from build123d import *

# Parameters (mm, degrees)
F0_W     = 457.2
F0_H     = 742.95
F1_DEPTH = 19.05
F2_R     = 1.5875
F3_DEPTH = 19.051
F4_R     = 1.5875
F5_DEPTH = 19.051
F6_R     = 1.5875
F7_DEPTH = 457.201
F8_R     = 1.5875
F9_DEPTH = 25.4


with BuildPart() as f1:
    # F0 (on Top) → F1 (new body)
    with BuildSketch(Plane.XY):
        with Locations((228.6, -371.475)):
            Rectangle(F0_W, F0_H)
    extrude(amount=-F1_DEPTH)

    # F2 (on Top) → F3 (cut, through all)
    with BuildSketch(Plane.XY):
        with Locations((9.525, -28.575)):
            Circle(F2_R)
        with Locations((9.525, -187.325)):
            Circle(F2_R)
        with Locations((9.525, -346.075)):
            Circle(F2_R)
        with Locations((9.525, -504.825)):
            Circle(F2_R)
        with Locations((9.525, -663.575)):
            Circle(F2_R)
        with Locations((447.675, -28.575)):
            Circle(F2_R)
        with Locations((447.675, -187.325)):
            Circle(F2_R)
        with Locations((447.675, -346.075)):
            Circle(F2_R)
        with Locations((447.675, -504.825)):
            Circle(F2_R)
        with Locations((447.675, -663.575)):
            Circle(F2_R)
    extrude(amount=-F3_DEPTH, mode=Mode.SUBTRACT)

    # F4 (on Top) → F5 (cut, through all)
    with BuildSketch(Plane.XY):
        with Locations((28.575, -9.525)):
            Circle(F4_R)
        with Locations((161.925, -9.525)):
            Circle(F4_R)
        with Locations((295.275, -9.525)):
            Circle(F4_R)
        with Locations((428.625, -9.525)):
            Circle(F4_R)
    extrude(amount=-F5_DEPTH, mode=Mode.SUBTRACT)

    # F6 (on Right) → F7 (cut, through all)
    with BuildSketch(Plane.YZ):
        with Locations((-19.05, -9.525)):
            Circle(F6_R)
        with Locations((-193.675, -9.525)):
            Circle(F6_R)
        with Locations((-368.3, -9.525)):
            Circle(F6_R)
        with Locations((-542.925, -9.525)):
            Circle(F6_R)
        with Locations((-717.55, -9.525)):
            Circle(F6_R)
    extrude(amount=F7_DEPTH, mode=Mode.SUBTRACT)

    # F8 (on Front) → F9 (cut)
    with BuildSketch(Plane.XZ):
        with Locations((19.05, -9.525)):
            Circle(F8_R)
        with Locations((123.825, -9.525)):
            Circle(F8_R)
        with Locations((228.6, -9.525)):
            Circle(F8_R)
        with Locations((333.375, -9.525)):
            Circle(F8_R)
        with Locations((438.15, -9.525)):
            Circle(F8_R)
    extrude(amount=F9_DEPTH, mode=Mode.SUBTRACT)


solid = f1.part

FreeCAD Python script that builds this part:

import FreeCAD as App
import Part
import Sketcher
from FreeCAD import Vector
Q = App.Units.Quantity

doc = App.newDocument("Part")
params = doc.addObject("Spreadsheet::Sheet", "Params")
for row, (alias, value) in enumerate([
    ("sketch1_width", "18 in"),
    ("sketch1_height", "29.25 in"),
    ("pad1_length", "0.75 in"),
    ("sketch2_diameter", "0.125 in"),
    ("sketch3_diameter", "0.125 in"),
    ("sketch4_diameter", "0.125 in"),
    ("sketch5_diameter", "0.125 in"),
    ("pocket4_length", "1 in"),
], start=1):
    params.set(f"A{row}", alias)
    params.set(f"B{row}", "=" + value)
    params.setAlias(f"B{row}", alias)

body = doc.addObject("PartDesign::Body", "Body")

# Sketch on XY plane
sketch1 = body.newObject("Sketcher::SketchObject", "Sketch")
sketch1.AttachmentSupport = (doc.getObject("XY_Plane"), [""])
sketch1.MapMode = "FlatFace"
sketch1.addGeometry([
    Part.LineSegment(Vector(0, 0, 0), Vector(0, -742.95, 0)),
    Part.LineSegment(Vector(0, -742.95, 0), Vector(457.2, -742.95, 0)),
    Part.LineSegment(Vector(457.2, -742.95, 0), Vector(457.2, 0, 0)),
    Part.LineSegment(Vector(457.2, 0, 0), Vector(0, 0, 0)),
], False)
sketch1.addConstraint([
    Sketcher.Constraint("Coincident", 0, 2, 1, 1),
    Sketcher.Constraint("Coincident", 1, 2, 2, 1),
    Sketcher.Constraint("Coincident", 2, 2, 3, 1),
    Sketcher.Constraint("Coincident", 3, 2, 0, 1),
    Sketcher.Constraint("Vertical", 0),
    Sketcher.Constraint("Horizontal", 1),
    Sketcher.Constraint("Vertical", 2),
    Sketcher.Constraint("Horizontal", 3),
    Sketcher.Constraint("Coincident", 3, 2, -1, 1),
    Sketcher.Constraint("DistanceX", 1, 1, 1, 2, Q("18 in")),
    Sketcher.Constraint("DistanceY", 0, 2, 0, 1, Q("29.25 in")),
])
sketch1.setExpression("Constraints[9]", "Params.sketch1_width")
sketch1.setExpression("Constraints[10]", "Params.sketch1_height")
pad1 = body.newObject("PartDesign::Pad", "Pad")
pad1.Profile = sketch1
pad1.setExpression("Length", "Params.pad1_length")
pad1.Reversed = True

# Sketch on XY plane
sketch2 = body.newObject("Sketcher::SketchObject", "Sketch001")
sketch2.AttachmentSupport = (doc.getObject("XY_Plane"), [""])
sketch2.MapMode = "FlatFace"
sketch2.addGeometry([
    Part.Circle(Vector(9.525, -28.575, 0), Vector(0, 0, 1), 1.5875),  # 0
    Part.Circle(Vector(9.525, -187.325, 0), Vector(0, 0, 1), 1.5875),  # 1
    Part.Circle(Vector(9.525, -346.075, 0), Vector(0, 0, 1), 1.5875),  # 2
    Part.Circle(Vector(9.525, -504.825, 0), Vector(0, 0, 1), 1.5875),  # 3
    Part.Circle(Vector(9.525, -663.575, 0), Vector(0, 0, 1), 1.5875),  # 4
    Part.Circle(Vector(447.675, -28.575, 0), Vector(0, 0, 1), 1.5875),  # 5
    Part.Circle(Vector(447.675, -187.325, 0), Vector(0, 0, 1), 1.5875),  # 6
    Part.Circle(Vector(447.675, -346.075, 0), Vector(0, 0, 1), 1.5875),  # 7
    Part.Circle(Vector(447.675, -504.825, 0), Vector(0, 0, 1), 1.5875),  # 8
    Part.Circle(Vector(447.675, -663.575, 0), Vector(0, 0, 1), 1.5875),  # 9
], False)
sketch2.addConstraint([
    Sketcher.Constraint("Equal", 0, 1),
    Sketcher.Constraint("Equal", 1, 2),
    Sketcher.Constraint("Equal", 2, 3),
    Sketcher.Constraint("Equal", 3, 4),
    Sketcher.Constraint("Equal", 4, 5),
    Sketcher.Constraint("Equal", 5, 6),
    Sketcher.Constraint("Equal", 6, 7),
    Sketcher.Constraint("Equal", 7, 8),
    Sketcher.Constraint("Equal", 8, 9),
    Sketcher.Constraint("Horizontal", 0, 3, 5, 3),
    Sketcher.Constraint("Horizontal", 1, 3, 6, 3),
    Sketcher.Constraint("Horizontal", 2, 3, 7, 3),
    Sketcher.Constraint("Horizontal", 3, 3, 8, 3),
    Sketcher.Constraint("Horizontal", 4, 3, 9, 3),
    Sketcher.Constraint("Vertical", 0, 3, 1, 3),
    Sketcher.Constraint("Vertical", 1, 3, 2, 3),
    Sketcher.Constraint("Vertical", 2, 3, 3, 3),
    Sketcher.Constraint("Vertical", 3, 3, 4, 3),
    Sketcher.Constraint("Vertical", 5, 3, 6, 3),
    Sketcher.Constraint("Vertical", 6, 3, 7, 3),
    Sketcher.Constraint("Vertical", 7, 3, 8, 3),
    Sketcher.Constraint("Vertical", 8, 3, 9, 3),
    Sketcher.Constraint("Diameter", 0, Q("0.125 in")),
    Sketcher.Constraint("DistanceY", 4, 3, 0, 3, Q("25 in")),
    Sketcher.Constraint("DistanceY", 2, 3, 0, 3, Q("12.5 in")),
    Sketcher.Constraint("DistanceY", 3, 3, 1, 3, Q("12.5 in")),
    Sketcher.Constraint("DistanceY", 1, 3, 0, 3, Q("6.25 in")),
    Sketcher.Constraint("DistanceX", 0, 3, 5, 3, Q("17.25 in")),
    Sketcher.Constraint("DistanceX", -1, 1, 0, 3, Q("0.375 in")),
    Sketcher.Constraint("DistanceY", 0, 3, -1, 1, Q("1.125 in")),
])
sketch2.setExpression("Constraints[22]", "Params.sketch2_diameter")
pocket1 = body.newObject("PartDesign::Pocket", "Pocket")
pocket1.Profile = sketch2
pocket1.Type = "ThroughAll"

# Sketch on XY plane
sketch3 = body.newObject("Sketcher::SketchObject", "Sketch002")
sketch3.AttachmentSupport = (doc.getObject("XY_Plane"), [""])
sketch3.MapMode = "FlatFace"
sketch3.addGeometry([
    Part.Circle(Vector(28.575, -9.525, 0), Vector(0, 0, 1), 1.5875),
    Part.Circle(Vector(161.925, -9.525, 0), Vector(0, 0, 1), 1.5875),
    Part.Circle(Vector(295.275, -9.525, 0), Vector(0, 0, 1), 1.5875),
    Part.Circle(Vector(428.625, -9.525, 0), Vector(0, 0, 1), 1.5875),
], False)
sketch3.addConstraint([
    Sketcher.Constraint("Equal", 0, 1),
    Sketcher.Constraint("Equal", 1, 2),
    Sketcher.Constraint("Equal", 2, 3),
    Sketcher.Constraint("Horizontal", 0, 3, 1, 3),
    Sketcher.Constraint("Horizontal", 1, 3, 2, 3),
    Sketcher.Constraint("Horizontal", 2, 3, 3, 3),
    Sketcher.Constraint("Diameter", 0, Q("0.125 in")),
    Sketcher.Constraint("DistanceX", 0, 3, 2, 3, Q("10.5 in")),
    Sketcher.Constraint("DistanceX", 1, 3, 3, 3, Q("10.5 in")),
    Sketcher.Constraint("DistanceX", 0, 3, 1, 3, Q("5.25 in")),
    Sketcher.Constraint("DistanceX", -1, 1, 0, 3, Q("1.125 in")),
    Sketcher.Constraint("DistanceY", 0, 3, -1, 1, Q("0.375 in")),
])
sketch3.setExpression("Constraints[6]", "Params.sketch3_diameter")
pocket2 = body.newObject("PartDesign::Pocket", "Pocket001")
pocket2.Profile = sketch3
pocket2.Type = "ThroughAll"

# Sketch on YZ plane
sketch4 = body.newObject("Sketcher::SketchObject", "Sketch003")
sketch4.AttachmentSupport = (doc.getObject("YZ_Plane"), [""])
sketch4.MapMode = "FlatFace"
sketch4.addGeometry([
    Part.Circle(Vector(-19.05, -9.525, 0), Vector(0, 0, 1), 1.5875),  # 0
    Part.Circle(Vector(-193.675, -9.525, 0), Vector(0, 0, 1), 1.5875),  # 1
    Part.Circle(Vector(-368.3, -9.525, 0), Vector(0, 0, 1), 1.5875),  # 2
    Part.Circle(Vector(-542.925, -9.525, 0), Vector(0, 0, 1), 1.5875),  # 3
    Part.Circle(Vector(-717.55, -9.525, 0), Vector(0, 0, 1), 1.5875),  # 4
], False)
sketch4.addConstraint([
    Sketcher.Constraint("Equal", 0, 1),
    Sketcher.Constraint("Equal", 1, 2),
    Sketcher.Constraint("Equal", 2, 3),
    Sketcher.Constraint("Equal", 3, 4),
    Sketcher.Constraint("Horizontal", 0, 3, 1, 3),
    Sketcher.Constraint("Horizontal", 1, 3, 2, 3),
    Sketcher.Constraint("Horizontal", 2, 3, 3, 3),
    Sketcher.Constraint("Horizontal", 3, 3, 4, 3),
    Sketcher.Constraint("Diameter", 0, Q("0.125 in")),
    Sketcher.Constraint("DistanceX", 2, 3, -1, 1, Q("14.5 in")),
    Sketcher.Constraint("DistanceX", 4, 3, 0, 3, Q("27.5 in")),
    Sketcher.Constraint("DistanceX", 0, 3, -1, 1, Q("0.75 in")),
    Sketcher.Constraint("DistanceX", 3, 3, 1, 3, Q("13.75 in")),
    Sketcher.Constraint("DistanceY", 0, 3, -1, 1, Q("0.375 in")),
    Sketcher.Constraint("DistanceX", 1, 3, -1, 1, Q("7.625 in")),
])
sketch4.setExpression("Constraints[8]", "Params.sketch4_diameter")
pocket3 = body.newObject("PartDesign::Pocket", "Pocket002")
pocket3.Profile = sketch4
pocket3.Type = "ThroughAll"
pocket3.Reversed = True

# Sketch on XZ plane
sketch5 = body.newObject("Sketcher::SketchObject", "Sketch004")
sketch5.AttachmentSupport = (doc.getObject("XZ_Plane"), [""])
sketch5.MapMode = "FlatFace"
sketch5.addGeometry([
    Part.Circle(Vector(19.05, -9.525, 0), Vector(0, 0, 1), 1.5875),  # 0
    Part.Circle(Vector(123.825, -9.525, 0), Vector(0, 0, 1), 1.5875),  # 1
    Part.Circle(Vector(228.6, -9.525, 0), Vector(0, 0, 1), 1.5875),  # 2
    Part.Circle(Vector(333.375, -9.525, 0), Vector(0, 0, 1), 1.5875),  # 3
    Part.Circle(Vector(438.15, -9.525, 0), Vector(0, 0, 1), 1.5875),  # 4
], False)
sketch5.addConstraint([
    Sketcher.Constraint("Equal", 0, 1),
    Sketcher.Constraint("Equal", 1, 2),
    Sketcher.Constraint("Equal", 2, 3),
    Sketcher.Constraint("Equal", 3, 4),
    Sketcher.Constraint("Horizontal", 0, 3, 1, 3),
    Sketcher.Constraint("Horizontal", 1, 3, 2, 3),
    Sketcher.Constraint("Horizontal", 2, 3, 3, 3),
    Sketcher.Constraint("Horizontal", 3, 3, 4, 3),
    Sketcher.Constraint("Diameter", 0, Q("0.125 in")),
    Sketcher.Constraint("DistanceX", -1, 1, 2, 3, Q("9 in")),
    Sketcher.Constraint("DistanceX", 0, 3, 4, 3, Q("16.5 in")),
    Sketcher.Constraint("DistanceX", -1, 1, 0, 3, Q("0.75 in")),
    Sketcher.Constraint("DistanceX", 1, 3, 3, 3, Q("8.25 in")),
    Sketcher.Constraint("DistanceY", 0, 3, -1, 1, Q("0.375 in")),
    Sketcher.Constraint("DistanceX", -1, 1, 1, 3, Q("4.875 in")),
])
sketch5.setExpression("Constraints[8]", "Params.sketch5_diameter")
pocket4 = body.newObject("PartDesign::Pocket", "Pocket003")
pocket4.Profile = sketch5
pocket4.setExpression("Length", "Params.pocket4_length")
pocket4.Reversed = True

doc.recompute()
